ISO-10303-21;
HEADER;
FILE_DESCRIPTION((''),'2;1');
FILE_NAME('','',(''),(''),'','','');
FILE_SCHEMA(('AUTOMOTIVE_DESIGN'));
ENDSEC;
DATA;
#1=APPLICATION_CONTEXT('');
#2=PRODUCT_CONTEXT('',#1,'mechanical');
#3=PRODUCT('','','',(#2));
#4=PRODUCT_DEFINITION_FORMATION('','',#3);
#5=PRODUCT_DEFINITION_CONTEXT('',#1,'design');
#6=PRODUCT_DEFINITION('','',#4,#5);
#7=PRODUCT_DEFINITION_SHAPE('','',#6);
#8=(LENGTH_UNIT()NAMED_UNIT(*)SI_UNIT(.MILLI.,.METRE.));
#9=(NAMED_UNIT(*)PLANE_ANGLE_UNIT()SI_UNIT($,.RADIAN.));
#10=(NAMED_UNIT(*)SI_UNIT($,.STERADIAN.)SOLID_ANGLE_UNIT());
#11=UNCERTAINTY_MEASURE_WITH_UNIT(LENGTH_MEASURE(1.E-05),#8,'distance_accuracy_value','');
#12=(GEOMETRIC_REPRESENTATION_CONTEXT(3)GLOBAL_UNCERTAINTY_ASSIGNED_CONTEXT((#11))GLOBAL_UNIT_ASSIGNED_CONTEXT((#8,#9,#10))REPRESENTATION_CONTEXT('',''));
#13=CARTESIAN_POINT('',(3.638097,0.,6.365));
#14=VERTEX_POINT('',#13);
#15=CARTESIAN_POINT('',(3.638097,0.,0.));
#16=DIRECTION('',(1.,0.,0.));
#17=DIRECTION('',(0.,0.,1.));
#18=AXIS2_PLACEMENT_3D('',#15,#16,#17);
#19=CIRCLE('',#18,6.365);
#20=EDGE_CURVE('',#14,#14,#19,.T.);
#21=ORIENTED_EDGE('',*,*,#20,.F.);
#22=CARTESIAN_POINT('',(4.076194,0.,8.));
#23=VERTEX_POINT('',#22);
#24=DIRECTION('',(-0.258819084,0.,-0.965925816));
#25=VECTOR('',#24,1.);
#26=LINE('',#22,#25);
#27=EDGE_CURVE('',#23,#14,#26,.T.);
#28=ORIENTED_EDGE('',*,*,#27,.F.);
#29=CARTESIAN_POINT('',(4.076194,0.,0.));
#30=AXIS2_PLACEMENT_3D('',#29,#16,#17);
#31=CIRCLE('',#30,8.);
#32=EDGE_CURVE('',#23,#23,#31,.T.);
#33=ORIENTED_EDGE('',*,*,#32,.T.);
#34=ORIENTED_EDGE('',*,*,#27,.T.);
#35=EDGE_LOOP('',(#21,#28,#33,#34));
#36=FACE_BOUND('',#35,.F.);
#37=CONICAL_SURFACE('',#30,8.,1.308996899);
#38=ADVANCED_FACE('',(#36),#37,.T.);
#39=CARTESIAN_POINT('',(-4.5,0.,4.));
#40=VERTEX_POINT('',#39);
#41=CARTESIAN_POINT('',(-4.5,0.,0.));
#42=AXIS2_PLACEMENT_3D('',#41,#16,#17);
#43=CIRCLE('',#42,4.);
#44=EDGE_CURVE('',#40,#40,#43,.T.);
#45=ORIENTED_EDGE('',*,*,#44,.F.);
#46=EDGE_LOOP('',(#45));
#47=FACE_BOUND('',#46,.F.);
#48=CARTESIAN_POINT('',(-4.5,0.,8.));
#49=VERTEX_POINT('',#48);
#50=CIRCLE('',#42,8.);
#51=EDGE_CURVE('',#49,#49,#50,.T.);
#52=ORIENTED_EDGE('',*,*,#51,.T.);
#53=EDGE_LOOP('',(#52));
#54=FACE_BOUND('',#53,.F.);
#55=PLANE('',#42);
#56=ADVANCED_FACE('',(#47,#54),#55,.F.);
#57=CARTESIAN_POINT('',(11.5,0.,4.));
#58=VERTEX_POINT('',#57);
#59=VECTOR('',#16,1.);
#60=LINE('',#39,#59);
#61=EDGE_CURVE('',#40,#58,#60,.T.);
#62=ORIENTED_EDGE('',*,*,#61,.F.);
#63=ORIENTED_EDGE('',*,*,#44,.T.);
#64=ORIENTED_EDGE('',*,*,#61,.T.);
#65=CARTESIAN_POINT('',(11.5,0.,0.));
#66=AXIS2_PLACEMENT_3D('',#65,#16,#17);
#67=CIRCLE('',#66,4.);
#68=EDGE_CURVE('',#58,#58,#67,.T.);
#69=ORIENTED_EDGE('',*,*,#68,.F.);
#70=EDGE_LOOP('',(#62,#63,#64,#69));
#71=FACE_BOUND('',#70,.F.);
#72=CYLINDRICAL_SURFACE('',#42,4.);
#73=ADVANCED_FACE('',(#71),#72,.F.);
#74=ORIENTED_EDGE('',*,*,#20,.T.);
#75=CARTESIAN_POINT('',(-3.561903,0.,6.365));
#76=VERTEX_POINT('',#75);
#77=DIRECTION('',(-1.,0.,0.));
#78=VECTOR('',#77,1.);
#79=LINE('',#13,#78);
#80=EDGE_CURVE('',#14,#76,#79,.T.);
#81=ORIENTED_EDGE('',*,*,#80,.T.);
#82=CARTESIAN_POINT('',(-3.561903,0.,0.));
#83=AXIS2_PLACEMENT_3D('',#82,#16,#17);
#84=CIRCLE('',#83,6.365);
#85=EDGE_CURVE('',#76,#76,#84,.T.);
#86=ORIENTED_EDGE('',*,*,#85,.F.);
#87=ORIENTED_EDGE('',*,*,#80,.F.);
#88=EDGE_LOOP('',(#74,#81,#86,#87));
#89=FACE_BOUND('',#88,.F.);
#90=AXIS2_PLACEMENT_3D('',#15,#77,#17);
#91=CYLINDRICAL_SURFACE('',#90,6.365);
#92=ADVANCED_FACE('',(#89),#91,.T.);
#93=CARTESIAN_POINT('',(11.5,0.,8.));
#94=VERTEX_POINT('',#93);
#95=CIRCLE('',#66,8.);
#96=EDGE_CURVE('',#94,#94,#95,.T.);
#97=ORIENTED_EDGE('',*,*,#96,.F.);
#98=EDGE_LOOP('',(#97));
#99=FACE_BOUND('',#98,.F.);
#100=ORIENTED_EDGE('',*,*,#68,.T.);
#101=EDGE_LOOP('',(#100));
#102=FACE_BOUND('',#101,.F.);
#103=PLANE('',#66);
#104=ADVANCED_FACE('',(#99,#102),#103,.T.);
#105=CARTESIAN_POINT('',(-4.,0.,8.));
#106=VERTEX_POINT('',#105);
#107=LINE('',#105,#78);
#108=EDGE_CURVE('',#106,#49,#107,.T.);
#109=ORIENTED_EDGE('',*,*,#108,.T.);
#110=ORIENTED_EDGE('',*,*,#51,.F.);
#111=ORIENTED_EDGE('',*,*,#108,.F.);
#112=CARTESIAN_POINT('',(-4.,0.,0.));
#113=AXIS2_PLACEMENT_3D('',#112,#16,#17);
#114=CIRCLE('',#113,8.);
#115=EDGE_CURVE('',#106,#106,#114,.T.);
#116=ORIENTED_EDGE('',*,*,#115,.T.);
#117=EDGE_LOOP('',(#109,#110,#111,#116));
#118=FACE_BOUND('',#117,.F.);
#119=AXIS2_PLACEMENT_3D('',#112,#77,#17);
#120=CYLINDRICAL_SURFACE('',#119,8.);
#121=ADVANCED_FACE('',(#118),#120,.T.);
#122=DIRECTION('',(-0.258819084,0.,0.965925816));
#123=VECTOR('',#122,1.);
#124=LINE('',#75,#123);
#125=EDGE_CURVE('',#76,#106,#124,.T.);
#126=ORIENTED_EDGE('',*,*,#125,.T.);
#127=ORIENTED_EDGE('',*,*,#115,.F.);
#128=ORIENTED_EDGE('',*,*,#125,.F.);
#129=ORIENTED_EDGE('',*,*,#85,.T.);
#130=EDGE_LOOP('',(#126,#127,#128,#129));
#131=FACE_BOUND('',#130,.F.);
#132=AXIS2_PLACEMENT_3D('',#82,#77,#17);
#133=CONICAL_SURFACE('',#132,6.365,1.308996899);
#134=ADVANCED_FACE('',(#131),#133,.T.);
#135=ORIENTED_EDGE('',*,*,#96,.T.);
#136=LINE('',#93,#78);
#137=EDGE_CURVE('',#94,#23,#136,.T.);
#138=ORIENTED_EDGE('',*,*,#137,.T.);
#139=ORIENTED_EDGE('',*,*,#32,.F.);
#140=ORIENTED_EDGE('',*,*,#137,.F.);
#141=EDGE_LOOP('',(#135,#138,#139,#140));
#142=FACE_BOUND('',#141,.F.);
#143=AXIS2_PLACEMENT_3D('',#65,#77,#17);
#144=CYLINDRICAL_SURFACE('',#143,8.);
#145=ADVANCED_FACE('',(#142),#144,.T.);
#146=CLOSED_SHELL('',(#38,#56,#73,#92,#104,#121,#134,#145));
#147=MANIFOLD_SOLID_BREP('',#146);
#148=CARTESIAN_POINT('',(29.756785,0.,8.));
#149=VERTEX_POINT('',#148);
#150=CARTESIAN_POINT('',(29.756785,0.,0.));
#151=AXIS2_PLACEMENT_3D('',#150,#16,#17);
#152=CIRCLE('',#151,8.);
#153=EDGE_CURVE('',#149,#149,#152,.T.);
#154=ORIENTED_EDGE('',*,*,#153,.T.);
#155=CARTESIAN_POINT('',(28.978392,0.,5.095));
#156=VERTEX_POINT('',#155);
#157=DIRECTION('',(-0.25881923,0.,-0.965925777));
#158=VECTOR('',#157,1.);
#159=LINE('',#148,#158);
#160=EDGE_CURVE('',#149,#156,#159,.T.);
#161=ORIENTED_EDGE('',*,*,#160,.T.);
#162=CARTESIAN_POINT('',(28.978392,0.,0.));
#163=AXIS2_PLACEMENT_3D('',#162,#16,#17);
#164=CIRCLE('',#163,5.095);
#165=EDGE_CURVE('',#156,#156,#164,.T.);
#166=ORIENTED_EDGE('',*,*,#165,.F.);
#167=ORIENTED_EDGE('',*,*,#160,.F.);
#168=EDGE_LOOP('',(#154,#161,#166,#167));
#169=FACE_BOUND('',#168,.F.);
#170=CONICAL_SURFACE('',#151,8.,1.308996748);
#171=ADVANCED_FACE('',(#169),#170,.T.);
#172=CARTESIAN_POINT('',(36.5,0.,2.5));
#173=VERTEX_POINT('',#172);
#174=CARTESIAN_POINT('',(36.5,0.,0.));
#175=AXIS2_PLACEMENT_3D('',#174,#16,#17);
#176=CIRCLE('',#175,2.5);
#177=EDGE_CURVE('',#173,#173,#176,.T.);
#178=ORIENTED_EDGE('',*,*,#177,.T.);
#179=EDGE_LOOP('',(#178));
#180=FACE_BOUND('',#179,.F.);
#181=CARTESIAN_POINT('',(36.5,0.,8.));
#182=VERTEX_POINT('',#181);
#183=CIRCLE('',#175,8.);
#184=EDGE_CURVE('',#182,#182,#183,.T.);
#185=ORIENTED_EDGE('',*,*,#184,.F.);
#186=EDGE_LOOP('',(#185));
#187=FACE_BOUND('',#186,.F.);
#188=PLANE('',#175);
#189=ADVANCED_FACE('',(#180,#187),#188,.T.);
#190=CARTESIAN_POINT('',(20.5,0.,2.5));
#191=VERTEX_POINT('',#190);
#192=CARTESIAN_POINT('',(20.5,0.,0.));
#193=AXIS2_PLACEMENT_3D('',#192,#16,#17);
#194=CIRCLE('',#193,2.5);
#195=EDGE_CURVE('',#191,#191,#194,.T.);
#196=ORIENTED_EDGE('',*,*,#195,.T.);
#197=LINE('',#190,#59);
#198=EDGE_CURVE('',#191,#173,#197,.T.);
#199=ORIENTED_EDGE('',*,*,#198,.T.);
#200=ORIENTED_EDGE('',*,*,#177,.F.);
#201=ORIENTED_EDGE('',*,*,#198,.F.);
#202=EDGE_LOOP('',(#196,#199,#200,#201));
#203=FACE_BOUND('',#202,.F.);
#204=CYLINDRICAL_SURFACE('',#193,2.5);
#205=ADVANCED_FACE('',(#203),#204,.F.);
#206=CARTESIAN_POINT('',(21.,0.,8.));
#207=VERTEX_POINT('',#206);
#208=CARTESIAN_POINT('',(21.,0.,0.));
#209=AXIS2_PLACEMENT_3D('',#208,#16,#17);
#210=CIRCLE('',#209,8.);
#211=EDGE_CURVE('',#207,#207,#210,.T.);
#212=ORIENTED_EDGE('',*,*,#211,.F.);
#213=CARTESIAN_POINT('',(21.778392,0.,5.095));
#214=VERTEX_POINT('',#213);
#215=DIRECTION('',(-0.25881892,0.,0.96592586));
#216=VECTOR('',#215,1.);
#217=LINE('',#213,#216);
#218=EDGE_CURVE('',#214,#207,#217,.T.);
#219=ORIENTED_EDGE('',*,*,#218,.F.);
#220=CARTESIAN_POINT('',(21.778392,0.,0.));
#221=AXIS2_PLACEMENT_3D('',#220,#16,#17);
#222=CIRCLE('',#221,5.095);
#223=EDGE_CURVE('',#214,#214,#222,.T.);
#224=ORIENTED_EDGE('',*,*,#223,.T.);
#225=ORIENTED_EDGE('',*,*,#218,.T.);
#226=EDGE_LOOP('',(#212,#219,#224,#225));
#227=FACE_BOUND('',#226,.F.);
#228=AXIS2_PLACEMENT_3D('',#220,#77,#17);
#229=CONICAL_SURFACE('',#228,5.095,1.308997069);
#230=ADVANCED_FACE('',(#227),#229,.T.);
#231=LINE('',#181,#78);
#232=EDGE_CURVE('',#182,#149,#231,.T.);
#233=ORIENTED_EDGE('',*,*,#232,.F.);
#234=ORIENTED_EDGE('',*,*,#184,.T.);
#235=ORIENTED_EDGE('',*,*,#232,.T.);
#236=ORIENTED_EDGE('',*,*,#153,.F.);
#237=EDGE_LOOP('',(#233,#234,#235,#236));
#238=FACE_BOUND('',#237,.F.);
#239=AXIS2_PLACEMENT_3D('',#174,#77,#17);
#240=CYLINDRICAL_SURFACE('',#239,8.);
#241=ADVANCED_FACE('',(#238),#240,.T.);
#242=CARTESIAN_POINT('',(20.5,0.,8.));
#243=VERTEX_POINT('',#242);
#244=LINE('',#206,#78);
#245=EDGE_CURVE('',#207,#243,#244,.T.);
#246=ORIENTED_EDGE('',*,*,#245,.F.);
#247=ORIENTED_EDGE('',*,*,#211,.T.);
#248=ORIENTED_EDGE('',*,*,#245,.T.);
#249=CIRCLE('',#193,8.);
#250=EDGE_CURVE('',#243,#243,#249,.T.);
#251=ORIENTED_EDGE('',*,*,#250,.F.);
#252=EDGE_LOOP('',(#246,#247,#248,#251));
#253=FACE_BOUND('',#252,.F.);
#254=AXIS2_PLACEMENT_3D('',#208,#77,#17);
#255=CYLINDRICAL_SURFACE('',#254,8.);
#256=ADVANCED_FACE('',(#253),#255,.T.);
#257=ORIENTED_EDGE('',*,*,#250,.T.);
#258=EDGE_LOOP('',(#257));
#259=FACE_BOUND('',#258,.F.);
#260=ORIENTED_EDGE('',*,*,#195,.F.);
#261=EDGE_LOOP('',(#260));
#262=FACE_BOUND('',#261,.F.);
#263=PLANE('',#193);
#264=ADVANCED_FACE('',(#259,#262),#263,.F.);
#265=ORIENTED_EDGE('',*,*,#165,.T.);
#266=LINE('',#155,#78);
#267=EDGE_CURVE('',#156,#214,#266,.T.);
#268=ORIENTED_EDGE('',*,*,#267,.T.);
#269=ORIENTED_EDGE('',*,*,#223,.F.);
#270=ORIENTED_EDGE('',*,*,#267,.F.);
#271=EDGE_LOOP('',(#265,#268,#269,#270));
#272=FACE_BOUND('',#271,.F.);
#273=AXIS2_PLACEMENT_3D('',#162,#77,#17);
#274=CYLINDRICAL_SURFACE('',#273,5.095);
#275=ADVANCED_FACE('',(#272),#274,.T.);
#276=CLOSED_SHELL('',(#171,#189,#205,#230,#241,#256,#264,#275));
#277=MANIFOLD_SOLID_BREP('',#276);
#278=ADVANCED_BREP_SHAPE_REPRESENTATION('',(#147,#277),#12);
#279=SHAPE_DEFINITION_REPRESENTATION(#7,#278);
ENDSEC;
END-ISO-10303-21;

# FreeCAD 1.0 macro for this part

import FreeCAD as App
import Part
import Sketcher
from FreeCAD import Vector
Q = App.Units.Quantity


def add_polygon(sketch, points):
    """Adds a closed chain of lines whose ends are joined by coincident constraints."""
    first, n = sketch.GeometryCount, len(points)
    for a, b in zip(points, points[1:] + points[:1]):
        sketch.addGeometry(Part.LineSegment(App.Vector(*a, 0), App.Vector(*b, 0)), False)
    for i in range(n):
        sketch.addConstraint(Sketcher.Constraint("Coincident", first + i, 2, first + (i + 1) % n, 1))

doc = App.newDocument("Part")
body = doc.addObject("PartDesign::Body", "Body")

# Sketch on XZ plane
sketch1 = body.newObject("Sketcher::SketchObject", "Sketch")
sketch1.AttachmentSupport = (doc.getObject("XZ_Plane"), [""])
sketch1.MapMode = "FlatFace"
add_polygon(sketch1, [(3.638097, 6.365), (-3.561903, 6.365), (-4, 8), (-4.5, 8), (-4.5, 4), (11.5, 4), (11.5, 8), (4.076194, 8)])  # lines 0-7
sketch1.addConstraint(Sketcher.Constraint("Horizontal", 0))
sketch1.addConstraint(Sketcher.Constraint("Horizontal", 2))
sketch1.addConstraint(Sketcher.Constraint("Vertical", 3))
sketch1.addConstraint(Sketcher.Constraint("Horizontal", 4))
sketch1.addConstraint(Sketcher.Constraint("Vertical", 5))
sketch1.addConstraint(Sketcher.Constraint("Horizontal", 6))
sketch1.addConstraint(Sketcher.Constraint("Horizontal", 2, 2, 5, 2))
sketch1.addConstraint(Sketcher.Constraint("Equal", 1, 7))
sketch1.addConstraint(Sketcher.Constraint("DistanceX", 4, 1, 4, 2, 16.0))
sketch1.addConstraint(Sketcher.Constraint("DistanceY", 3, 2, 3, 1, 4.0))
sketch1.addConstraint(Sketcher.Constraint("Angle", 1, Q("105.000002 deg")))
sketch1.addConstraint(Sketcher.Constraint("DistanceX", 0, 2, 0, 1, 7.2))
sketch1.addConstraint(Sketcher.Constraint("DistanceX", 2, 2, 2, 1, 0.5))
sketch1.addConstraint(Sketcher.Constraint("DistanceX", 1, 2, -1, 1, 4.0))
sketch1.addConstraint(Sketcher.Constraint("DistanceY", -1, 1, 1, 2, 8.0))
sketch1.addConstraint(Sketcher.Constraint("DistanceY", -1, 1, 0, 2, 6.365))
revolution = body.newObject("PartDesign::Revolution", "Revolution")
revolution.Profile = sketch1
revolution.ReferenceAxis = (sketch1, ["H_Axis"])
revolution.Angle = 360
body2 = doc.addObject("PartDesign::Body", "Body001")

# Sketch on XZ plane
sketch2 = body2.newObject("Sketcher::SketchObject", "Sketch001")
sketch2.AttachmentSupport = (doc.getObject("XZ_Plane001"), [""])
sketch2.MapMode = "FlatFace"
add_polygon(sketch2, [(20.5, 8), (20.5, 2.5), (36.5, 2.5), (36.5, 8), (29.756785, 8), (28.978392, 5.095), (21.778392, 5.095), (21, 8)])  # lines 0-7
sketch2.addConstraint(Sketcher.Constraint("Vertical", 0))
sketch2.addConstraint(Sketcher.Constraint("Horizontal", 1))
sketch2.addConstraint(Sketcher.Constraint("Vertical", 2))
sketch2.addConstraint(Sketcher.Constraint("Horizontal", 3))
sketch2.addConstraint(Sketcher.Constraint("Horizontal", 5))
sketch2.addConstraint(Sketcher.Constraint("Horizontal", 7))
sketch2.addConstraint(Sketcher.Constraint("Horizontal", 3, 2, 6, 2))
sketch2.addConstraint(Sketcher.Constraint("Equal", 4, 6))
sketch2.addConstraint(Sketcher.Constraint("DistanceX", 1, 1, 1, 2, 16.0))
sketch2.addConstraint(Sketcher.Constraint("Angle", 4, Q("-105.000011 deg")))
sketch2.addConstraint(Sketcher.Constraint("DistanceX", 5, 2, 5, 1, 7.2))
sketch2.addConstraint(Sketcher.Constraint("DistanceX", 7, 2, 7, 1, 0.5))
sketch2.addConstraint(Sketcher.Constraint("DistanceY", 0, 2, 0, 1, 5.5))
sketch2.addConstraint(Sketcher.Constraint("DistanceY", -1, 1, 2, 2, 8.0))
sketch2.addConstraint(Sketcher.Constraint("DistanceX", -1, 1, 6, 2, 21.0))
sketch2.addConstraint(Sketcher.Constraint("DistanceY", -1, 1, 4, 2, 5.095))
revolution2 = body2.newObject("PartDesign::Revolution", "Revolution001")
revolution2.Profile = sketch2
revolution2.ReferenceAxis = (sketch2, ["H_Axis"])
revolution2.Angle = 360

doc.recompute()
